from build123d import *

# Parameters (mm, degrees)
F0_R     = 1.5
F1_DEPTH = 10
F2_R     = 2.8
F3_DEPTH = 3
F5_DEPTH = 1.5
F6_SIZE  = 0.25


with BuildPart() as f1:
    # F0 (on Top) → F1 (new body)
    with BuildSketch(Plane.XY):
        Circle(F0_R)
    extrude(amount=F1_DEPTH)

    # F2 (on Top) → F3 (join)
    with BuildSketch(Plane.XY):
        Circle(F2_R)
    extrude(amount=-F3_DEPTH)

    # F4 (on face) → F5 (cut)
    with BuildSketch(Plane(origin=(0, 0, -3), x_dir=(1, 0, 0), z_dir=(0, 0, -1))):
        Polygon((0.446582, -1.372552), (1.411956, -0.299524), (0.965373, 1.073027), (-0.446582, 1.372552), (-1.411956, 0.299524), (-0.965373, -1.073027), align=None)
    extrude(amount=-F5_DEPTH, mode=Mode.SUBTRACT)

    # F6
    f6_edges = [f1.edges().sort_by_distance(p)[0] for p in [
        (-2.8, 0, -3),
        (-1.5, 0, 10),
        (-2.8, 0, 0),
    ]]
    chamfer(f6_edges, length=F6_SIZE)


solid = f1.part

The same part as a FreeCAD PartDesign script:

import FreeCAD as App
import Part
import Sketcher

V = App.Vector


def edges_at(feature, points):
    """Names of the edges that pass closest to the given points."""
    edges = feature.Shape.Edges
    near = lambda p: min(range(len(edges)), key=lambda i: edges[i].distToShape(Part.Vertex(*p))[0])
    return sorted({f"Edge{near(p) + 1}" for p in points})

doc = App.newDocument("Part")
body = doc.addObject("PartDesign::Body", "Body")

# Sketch on XY plane
sketch1 = doc.addObject("Sketcher::SketchObject", "Sketch")
body.addObject(sketch1)
sketch1.AttachmentSupport = (doc.XY_Plane, [""])
sketch1.MapMode = "FlatFace"
sketch1.addGeometry(Part.Circle(V(0, 0, 0), V(0, 0, 1), 1.5), False)
sketch1.addConstraint(Sketcher.Constraint("Coincident", 0, 3, -1, 1))
sketch1.addConstraint(Sketcher.Constraint("Diameter", 0, 3.0))
pad1 = doc.addObject("PartDesign::Pad", "Pad")
body.addObject(pad1)
pad1.Profile = sketch1
pad1.Length = 10

# Sketch on XY plane
sketch2 = doc.addObject("Sketcher::SketchObject", "Sketch001")
body.addObject(sketch2)
sketch2.AttachmentSupport = (doc.XY_Plane, [""])
sketch2.MapMode = "FlatFace"
sketch2.addGeometry(Part.Circle(V(0, 0, 0), V(0, 0, 1), 2.8), False)
sketch2.addConstraint(Sketcher.Constraint("Coincident", 0, 3, -1, 1))
sketch2.addConstraint(Sketcher.Constraint("Diameter", 0, 5.6))
pad2 = doc.addObject("PartDesign::Pad", "Pad001")
body.addObject(pad2)
pad2.Profile = sketch2
pad2.Length = 3
pad2.Reversed = True

# Sketch on XY plane
sketch3 = doc.addObject("Sketcher::SketchObject", "Sketch002")
body.addObject(sketch3)
sketch3.AttachmentSupport = (doc.XY_Plane, [""])
sketch3.MapMode = "FlatFace"
sketch3.AttachmentOffset = App.Placement(V(0, 0, -3), App.Rotation())
sketch3.addGeometry(Part.LineSegment(V(0.446582, 1.372552, 0), V(1.411956, 0.299524, 0)), False)
sketch3.addGeometry(Part.LineSegment(V(1.411956, 0.299524, 0), V(0.965373, -1.073027, 0)), False)
sketch3.addGeometry(Part.LineSegment(V(0.965373, -1.073027, 0), V(-0.446582, -1.372552, 0)), False)
sketch3.addGeometry(Part.LineSegment(V(-0.446582, -1.372552, 0), V(-1.411956, -0.299524, 0)), False)
sketch3.addGeometry(Part.LineSegment(V(-1.411956, -0.299524, 0), V(-0.965373, 1.073027, 0)), False)
sketch3.addGeometry(Part.LineSegment(V(-0.965373, 1.073027, 0), V(0.446582, 1.372552, 0)), False)
sketch3.addConstraint(Sketcher.Constraint("Coincident", 0, 2, 1, 1))
sketch3.addConstraint(Sketcher.Constraint("Coincident", 1, 2, 2, 1))
sketch3.addConstraint(Sketcher.Constraint("Coincident", 2, 2, 3, 1))
sketch3.addConstraint(Sketcher.Constraint("Coincident", 3, 2, 4, 1))
sketch3.addConstraint(Sketcher.Constraint("Coincident", 4, 2, 5, 1))
sketch3.addConstraint(Sketcher.Constraint("Coincident", 5, 2, 0, 1))
sketch3.addConstraint(Sketcher.Constraint("Symmetric", 0, 2, 3, 2, -1, 1))
sketch3.addConstraint(Sketcher.Constraint("Symmetric", 1, 2, 4, 2, -1, 1))
sketch3.addConstraint(Sketcher.Constraint("Symmetric", 2, 2, 5, 2, -1, 1))
sketch3.addConstraint(Sketcher.Constraint("Equal", 0, 1))
sketch3.addConstraint(Sketcher.Constraint("Equal", 1, 2))
sketch3.addConstraint(Sketcher.Constraint("DistanceY", 1, 2, 0, 2, 1.372551))
sketch3.addConstraint(Sketcher.Constraint("DistanceX", 3, 2, 1, 2, 2.377329))
sketch3.addConstraint(Sketcher.Constraint("DistanceX", 3, 2, 0, 2, 2.823912))
sketch3.addConstraint(Sketcher.Constraint("DistanceY", 3, 2, 0, 2, 0.599048))
pocket1 = doc.addObject("PartDesign::Pocket", "Pocket")
body.addObject(pocket1)
pocket1.Profile = sketch3
pocket1.Length = 1.5
pocket1.Reversed = True
doc.recompute()

chamfer = doc.addObject("PartDesign::Chamfer", "Chamfer")
body.addObject(chamfer)
chamfer.Base = (pocket1, edges_at(pocket1, [(-2.8, 0, -3), (-1.5, 0, 10), (-2.8, 0, 0)]))
chamfer.Size = 0.25

doc.recompute()
